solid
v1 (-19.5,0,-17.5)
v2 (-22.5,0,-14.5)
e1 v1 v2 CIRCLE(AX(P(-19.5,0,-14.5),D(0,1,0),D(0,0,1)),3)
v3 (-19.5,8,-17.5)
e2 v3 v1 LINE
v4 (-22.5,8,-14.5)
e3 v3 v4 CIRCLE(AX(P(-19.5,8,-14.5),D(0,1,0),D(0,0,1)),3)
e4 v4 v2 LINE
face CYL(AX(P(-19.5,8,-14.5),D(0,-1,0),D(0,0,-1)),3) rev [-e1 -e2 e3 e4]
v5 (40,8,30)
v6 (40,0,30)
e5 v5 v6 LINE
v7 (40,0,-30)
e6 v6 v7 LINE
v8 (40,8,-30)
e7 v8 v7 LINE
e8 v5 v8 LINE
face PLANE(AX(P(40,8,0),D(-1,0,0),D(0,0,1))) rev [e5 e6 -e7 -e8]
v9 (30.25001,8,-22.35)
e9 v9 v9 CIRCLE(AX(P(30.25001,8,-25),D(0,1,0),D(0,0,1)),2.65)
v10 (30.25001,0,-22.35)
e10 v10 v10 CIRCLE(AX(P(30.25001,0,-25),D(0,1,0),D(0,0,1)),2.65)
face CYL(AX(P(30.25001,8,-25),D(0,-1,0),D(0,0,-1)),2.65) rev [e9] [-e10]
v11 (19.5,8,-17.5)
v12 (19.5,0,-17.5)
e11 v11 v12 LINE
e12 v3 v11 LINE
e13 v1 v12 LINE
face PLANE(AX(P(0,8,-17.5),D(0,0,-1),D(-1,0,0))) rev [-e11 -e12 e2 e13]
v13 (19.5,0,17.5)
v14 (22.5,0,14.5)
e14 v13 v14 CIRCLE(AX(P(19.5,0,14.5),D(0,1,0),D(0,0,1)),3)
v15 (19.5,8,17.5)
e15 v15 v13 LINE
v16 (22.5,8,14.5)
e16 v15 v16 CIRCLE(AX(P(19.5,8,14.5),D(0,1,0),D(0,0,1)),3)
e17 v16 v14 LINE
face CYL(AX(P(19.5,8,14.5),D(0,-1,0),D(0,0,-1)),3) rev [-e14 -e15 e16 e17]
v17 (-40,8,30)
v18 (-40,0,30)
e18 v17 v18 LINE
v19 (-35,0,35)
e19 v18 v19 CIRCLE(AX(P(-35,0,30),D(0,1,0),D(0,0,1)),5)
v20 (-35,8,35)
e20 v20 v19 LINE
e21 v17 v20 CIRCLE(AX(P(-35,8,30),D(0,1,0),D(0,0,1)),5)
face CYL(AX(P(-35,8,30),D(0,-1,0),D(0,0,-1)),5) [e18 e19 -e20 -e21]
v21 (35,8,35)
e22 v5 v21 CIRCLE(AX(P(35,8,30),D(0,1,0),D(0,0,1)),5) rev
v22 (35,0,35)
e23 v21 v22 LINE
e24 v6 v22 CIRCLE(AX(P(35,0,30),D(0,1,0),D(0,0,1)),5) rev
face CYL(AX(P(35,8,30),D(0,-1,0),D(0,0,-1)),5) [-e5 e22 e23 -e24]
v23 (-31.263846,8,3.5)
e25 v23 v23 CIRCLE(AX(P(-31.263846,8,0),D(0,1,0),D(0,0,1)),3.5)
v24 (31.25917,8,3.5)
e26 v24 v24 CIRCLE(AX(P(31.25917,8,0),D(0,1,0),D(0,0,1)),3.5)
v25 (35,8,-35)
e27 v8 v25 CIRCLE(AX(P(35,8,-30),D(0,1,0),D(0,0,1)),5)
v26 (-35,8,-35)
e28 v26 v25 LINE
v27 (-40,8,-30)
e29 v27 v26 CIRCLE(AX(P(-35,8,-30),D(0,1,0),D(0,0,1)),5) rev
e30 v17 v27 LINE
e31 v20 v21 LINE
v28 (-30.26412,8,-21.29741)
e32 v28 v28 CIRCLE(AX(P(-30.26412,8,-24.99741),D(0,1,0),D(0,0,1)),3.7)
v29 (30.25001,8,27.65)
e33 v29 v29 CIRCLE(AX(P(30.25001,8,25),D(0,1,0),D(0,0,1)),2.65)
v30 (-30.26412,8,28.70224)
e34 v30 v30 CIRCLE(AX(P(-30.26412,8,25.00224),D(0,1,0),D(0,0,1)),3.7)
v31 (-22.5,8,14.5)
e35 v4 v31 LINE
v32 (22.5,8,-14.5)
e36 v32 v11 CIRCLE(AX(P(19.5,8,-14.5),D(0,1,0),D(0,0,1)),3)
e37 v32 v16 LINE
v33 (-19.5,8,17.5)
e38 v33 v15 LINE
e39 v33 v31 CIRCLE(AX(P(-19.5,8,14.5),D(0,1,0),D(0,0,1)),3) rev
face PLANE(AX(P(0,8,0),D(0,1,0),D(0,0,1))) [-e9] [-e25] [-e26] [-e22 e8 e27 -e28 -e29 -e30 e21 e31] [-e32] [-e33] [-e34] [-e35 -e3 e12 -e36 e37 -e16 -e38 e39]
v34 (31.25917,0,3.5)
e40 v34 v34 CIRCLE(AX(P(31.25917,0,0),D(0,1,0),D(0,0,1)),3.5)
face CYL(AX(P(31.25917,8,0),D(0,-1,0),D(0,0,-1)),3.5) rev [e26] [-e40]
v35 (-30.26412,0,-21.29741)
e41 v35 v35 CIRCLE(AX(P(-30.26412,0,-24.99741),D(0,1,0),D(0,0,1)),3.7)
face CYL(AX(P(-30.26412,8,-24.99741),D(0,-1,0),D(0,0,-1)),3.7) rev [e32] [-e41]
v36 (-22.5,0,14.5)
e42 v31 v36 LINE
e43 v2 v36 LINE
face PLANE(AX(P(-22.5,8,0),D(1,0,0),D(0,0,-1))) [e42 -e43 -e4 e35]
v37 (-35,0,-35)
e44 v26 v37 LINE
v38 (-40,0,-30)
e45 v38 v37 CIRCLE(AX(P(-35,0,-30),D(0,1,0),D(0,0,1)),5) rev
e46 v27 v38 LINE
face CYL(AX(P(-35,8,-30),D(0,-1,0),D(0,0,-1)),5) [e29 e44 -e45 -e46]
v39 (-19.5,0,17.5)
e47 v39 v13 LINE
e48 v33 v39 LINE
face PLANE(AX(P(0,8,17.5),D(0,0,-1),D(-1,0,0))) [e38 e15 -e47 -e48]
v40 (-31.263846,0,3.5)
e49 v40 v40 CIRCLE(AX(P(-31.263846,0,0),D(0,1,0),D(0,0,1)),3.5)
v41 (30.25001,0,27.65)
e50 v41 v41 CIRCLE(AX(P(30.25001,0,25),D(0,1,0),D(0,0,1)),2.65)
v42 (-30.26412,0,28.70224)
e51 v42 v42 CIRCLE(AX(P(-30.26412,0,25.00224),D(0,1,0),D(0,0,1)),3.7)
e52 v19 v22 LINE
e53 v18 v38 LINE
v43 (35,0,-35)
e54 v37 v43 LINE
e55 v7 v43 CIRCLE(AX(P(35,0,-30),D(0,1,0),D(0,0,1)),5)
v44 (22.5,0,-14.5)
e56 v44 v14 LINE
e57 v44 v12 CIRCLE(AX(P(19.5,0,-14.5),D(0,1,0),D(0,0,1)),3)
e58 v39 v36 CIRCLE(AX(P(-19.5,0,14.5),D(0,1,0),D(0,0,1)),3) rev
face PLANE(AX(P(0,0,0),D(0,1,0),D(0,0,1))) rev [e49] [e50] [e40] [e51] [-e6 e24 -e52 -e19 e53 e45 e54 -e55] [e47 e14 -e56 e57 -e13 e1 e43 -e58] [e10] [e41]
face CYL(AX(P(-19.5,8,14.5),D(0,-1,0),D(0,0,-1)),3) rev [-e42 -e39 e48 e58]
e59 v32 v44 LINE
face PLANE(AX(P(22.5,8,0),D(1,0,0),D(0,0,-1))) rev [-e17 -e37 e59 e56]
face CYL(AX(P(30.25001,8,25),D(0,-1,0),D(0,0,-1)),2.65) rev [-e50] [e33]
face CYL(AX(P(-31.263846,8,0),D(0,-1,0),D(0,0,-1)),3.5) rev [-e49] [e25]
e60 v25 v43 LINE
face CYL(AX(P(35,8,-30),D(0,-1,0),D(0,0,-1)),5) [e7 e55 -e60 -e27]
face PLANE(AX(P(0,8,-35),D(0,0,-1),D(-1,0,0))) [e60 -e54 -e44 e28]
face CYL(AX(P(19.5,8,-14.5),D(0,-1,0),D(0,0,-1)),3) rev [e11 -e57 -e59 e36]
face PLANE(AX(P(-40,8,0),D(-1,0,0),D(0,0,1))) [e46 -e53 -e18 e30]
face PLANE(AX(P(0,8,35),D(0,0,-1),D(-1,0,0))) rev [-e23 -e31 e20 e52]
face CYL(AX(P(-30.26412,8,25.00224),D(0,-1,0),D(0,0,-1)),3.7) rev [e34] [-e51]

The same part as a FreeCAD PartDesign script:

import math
import FreeCAD as App
import Part
import Sketcher
from FreeCAD import Vector

doc = App.newDocument("Part")
body = doc.addObject("PartDesign::Body", "Body")

sketch1 = doc.addObject("Sketcher::SketchObject", "Sketch")
body.addObject(sketch1)
sketch1.AttachmentSupport = (doc.XZ_Plane, [""])
sketch1.MapMode = "FlatFace"
sketch1.addGeometry(Part.ArcOfCircle(Part.Circle(Vector(35, 30, 0), Vector(0, 0, 1), 5), math.radians(0), math.radians(90)), False)
sketch1.addGeometry(Part.LineSegment(Vector(40, 30, 0), Vector(40, -30, 0)), False)
sketch1.addGeometry(Part.ArcOfCircle(Part.Circle(Vector(35, -30, 0), Vector(0, 0, 1), 5), math.radians(-90), math.radians(0)), False)
sketch1.addGeometry(Part.LineSegment(Vector(35, -35, 0), Vector(-35, -35, 0)), False)
sketch1.addGeometry(Part.ArcOfCircle(Part.Circle(Vector(-35, -30, 0), Vector(0, 0, 1), 5), math.radians(180), math.radians(270)), False)
sketch1.addGeometry(Part.LineSegment(Vector(-40, -30, 0), Vector(-40, 30, 0)), False)
sketch1.addGeometry(Part.ArcOfCircle(Part.Circle(Vector(-35, 30, 0), Vector(0, 0, 1), 5), math.radians(90), math.radians(180)), False)
sketch1.addGeometry(Part.LineSegment(Vector(-35, 35, 0), Vector(35, 35, 0)), False)
sketch1.addGeometry(Part.Circle(Vector(30.3, 25, 0), Vector(0, 0, 1), 2.6), False)
sketch1.addGeometry(Part.Circle(Vector(-30.3, 25, 0), Vector(0, 0, 1), 3.7), False)
sketch1.addGeometry(Part.Circle(Vector(31.3, 0, 0), Vector(0, 0, 1), 3.5), False)
sketch1.addGeometry(Part.LineSegment(Vector(19.5, 17.5, 0), Vector(-19.5, 17.5, 0)), False)
sketch1.addGeometry(Part.ArcOfCircle(Part.Circle(Vector(-19.5, 14.5, 0), Vector(0, 0, 1), 3), math.radians(90), math.radians(180)), False)
sketch1.addGeometry(Part.LineSegment(Vector(-22.5, 14.5, 0), Vector(-22.5, -14.5, 0)), False)
sketch1.addGeometry(Part.ArcOfCircle(Part.Circle(Vector(-19.5, -14.5, 0), Vector(0, 0, 1), 3), math.radians(180), math.radians(270)), False)
sketch1.addGeometry(Part.LineSegment(Vector(-19.5, -17.5, 0), Vector(19.5, -17.5, 0)), False)
sketch1.addGeometry(Part.ArcOfCircle(Part.Circle(Vector(19.5, -14.5, 0), Vector(0, 0, 1), 3), math.radians(-90), math.radians(0)), False)
sketch1.addGeometry(Part.LineSegment(Vector(22.5, -14.5, 0), Vector(22.5, 14.5, 0)), False)
sketch1.addGeometry(Part.ArcOfCircle(Part.Circle(Vector(19.5, 14.5, 0), Vector(0, 0, 1), 3), math.radians(0), math.radians(90)), False)
sketch1.addGeometry(Part.Circle(Vector(30.3, -25, 0), Vector(0, 0, 1), 2.6), False)
sketch1.addGeometry(Part.Circle(Vector(-31.3, 0, 0), Vector(0, 0, 1), 3.5), False)
sketch1.addGeometry(Part.Circle(Vector(-30.3, -25, 0), Vector(0, 0, 1), 3.7), False)
sketch1.addConstraint(Sketcher.Constraint("Tangent", 0, 1, 1, 1))
sketch1.addConstraint(Sketcher.Constraint("Tangent", 1, 2, 2, 2))
sketch1.addConstraint(Sketcher.Constraint("Tangent", 2, 1, 3, 1))
sketch1.addConstraint(Sketcher.Constraint("Tangent", 3, 2, 4, 2))
sketch1.addConstraint(Sketcher.Constraint("Tangent", 4, 1, 5, 1))
sketch1.addConstraint(Sketcher.Constraint("Tangent", 5, 2, 6, 2))
sketch1.addConstraint(Sketcher.Constraint("Tangent", 6, 1, 7, 1))
sketch1.addConstraint(Sketcher.Constraint("Tangent", 7, 2, 0, 2))
sketch1.addConstraint(Sketcher.Constraint("Tangent", 11, 2, 12, 1))
sketch1.addConstraint(Sketcher.Constraint("Tangent", 12, 2, 13, 1))
sketch1.addConstraint(Sketcher.Constraint("Tangent", 13, 2, 14, 1))
sketch1.addConstraint(Sketcher.Constraint("Tangent", 14, 2, 15, 1))
sketch1.addConstraint(Sketcher.Constraint("Tangent", 15, 2, 16, 1))
sketch1.addConstraint(Sketcher.Constraint("Tangent", 16, 2, 17, 1))
sketch1.addConstraint(Sketcher.Constraint("Tangent", 17, 2, 18, 1))
sketch1.addConstraint(Sketcher.Constraint("Tangent", 18, 2, 11, 1))
sketch1.addConstraint(Sketcher.Constraint("Vertical", 1))
sketch1.addConstraint(Sketcher.Constraint("Horizontal", 3))
sketch1.addConstraint(Sketcher.Constraint("Vertical", 5))
sketch1.addConstraint(Sketcher.Constraint("Horizontal", 7))
sketch1.addConstraint(Sketcher.Constraint("Horizontal", 11))
sketch1.addConstraint(Sketcher.Constraint("Vertical", 13))
sketch1.addConstraint(Sketcher.Constraint("Horizontal", 15))
sketch1.addConstraint(Sketcher.Constraint("Vertical", 17))
sketch1.addConstraint(Sketcher.Constraint("Equal", 0, 2))
sketch1.addConstraint(Sketcher.Constraint("Equal", 2, 4))
sketch1.addConstraint(Sketcher.Constraint("Equal", 4, 6))
sketch1.addConstraint(Sketcher.Constraint("Equal", 12, 14))
sketch1.addConstraint(Sketcher.Constraint("Equal", 14, 16))
sketch1.addConstraint(Sketcher.Constraint("Equal", 16, 18))
sketch1.addConstraint(Sketcher.Constraint("Equal", 8, 19))
sketch1.addConstraint(Sketcher.Constraint("Equal", 10, 20))
sketch1.addConstraint(Sketcher.Constraint("Equal", 9, 21))
sketch1.addConstraint(Sketcher.Constraint("Symmetric", 0, 3, 4, 3, -1, 1))
sketch1.addConstraint(Sketcher.Constraint("Symmetric", 12, 3, 16, 3, -1, 1))
sketch1.addConstraint(Sketcher.Constraint("Symmetric", 8, 3, 19, 3, -1))
sketch1.addConstraint(Sketcher.Constraint("PointOnObject", 10, 3, -1))
sketch1.addConstraint(Sketcher.Constraint("PointOnObject", 20, 3, -1))
sketch1.addConstraint(Sketcher.Constraint("Vertical", 9, 3, 21, 3))
sketch1.addConstraint(Sketcher.Constraint("Diameter", 10, 7.0))
sketch1.addConstraint(Sketcher.Constraint("Radius", 0, 5.0))
sketch1.addConstraint(Sketcher.Constraint("Radius", 12, 3.0))
sketch1.addConstraint(Sketcher.Constraint("Diameter", 8, 5.3))
sketch1.addConstraint(Sketcher.Constraint("Diameter", 9, 7.4))
sketch1.addConstraint(Sketcher.Constraint("DistanceX", 3, 2, 3, 1, 70.0))
sketch1.addConstraint(Sketcher.Constraint("DistanceX", 11, 2, 11, 1, 39.0))
sketch1.addConstraint(Sketcher.Constraint("DistanceY", 1, 2, 1, 1, 60.0))
sketch1.addConstraint(Sketcher.Constraint("DistanceY", 13, 2, 13, 1, 29.0))
sketch1.addConstraint(Sketcher.Constraint("DistanceY", -1, 1, 8, 3, 25.0))
sketch1.addConstraint(Sketcher.Constraint("DistanceX", -1, 1, 8, 3, 30.25001))
sketch1.addConstraint(Sketcher.Constraint("DistanceX", 9, 3, -1, 1, 30.26412))
sketch1.addConstraint(Sketcher.Constraint("DistanceY", -1, 1, 9, 3, 25.00224))
sketch1.addConstraint(Sketcher.Constraint("DistanceX", -1, 1, 10, 3, 31.25917))
sketch1.addConstraint(Sketcher.Constraint("DistanceY", 21, 3, -1, 1, 24.99741))
sketch1.addConstraint(Sketcher.Constraint("DistanceX", 20, 3, -1, 1, 31.263846))
pad1 = doc.addObject("PartDesign::Pad", "Pad")
body.addObject(pad1)
pad1.Profile = sketch1
pad1.Length = 8
pad1.Reversed = True

doc.recompute()
